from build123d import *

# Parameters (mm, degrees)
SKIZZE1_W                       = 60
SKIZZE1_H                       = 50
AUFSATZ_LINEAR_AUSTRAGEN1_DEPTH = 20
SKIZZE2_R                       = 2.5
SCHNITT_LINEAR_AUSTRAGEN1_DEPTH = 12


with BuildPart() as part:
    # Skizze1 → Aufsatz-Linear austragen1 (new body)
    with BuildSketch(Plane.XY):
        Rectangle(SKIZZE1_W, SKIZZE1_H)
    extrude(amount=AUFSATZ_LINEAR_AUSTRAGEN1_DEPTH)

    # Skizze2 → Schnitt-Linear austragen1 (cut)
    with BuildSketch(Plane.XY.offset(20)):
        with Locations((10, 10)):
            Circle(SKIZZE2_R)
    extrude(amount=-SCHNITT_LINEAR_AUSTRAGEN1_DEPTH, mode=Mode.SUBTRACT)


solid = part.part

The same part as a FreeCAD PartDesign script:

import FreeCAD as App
import Part
import Sketcher
from FreeCAD import Vector
Q = App.Units.Quantity


def add_polygon(sketch, points):
    """Adds a closed chain of lines whose ends are joined by coincident constraints."""
    first, n = sketch.GeometryCount, len(points)
    for a, b in zip(points, points[1:] + points[:1]):
        sketch.addGeometry(Part.LineSegment(App.Vector(*a, 0), App.Vector(*b, 0)), False)
    for i in range(n):
        sketch.addConstraint(Sketcher.Constraint("Coincident", first + i, 2, first + (i + 1) % n, 1))

doc = App.newDocument("Part")
body = doc.addObject("PartDesign::Body", "Body")

# Sketch on XY plane
sketch1 = body.newObject("Sketcher::SketchObject", "Sketch")
sketch1.AttachmentSupport = (doc.getObject("XY_Plane"), [""])
sketch1.MapMode = "FlatFace"
add_polygon(sketch1, [(-30, 25), (-30, -25), (30, -25), (30, 25)])  # lines 0-3
sketch1.addConstraint([
    Sketcher.Constraint("Vertical", 0),
    Sketcher.Constraint("Horizontal", 1),
    Sketcher.Constraint("Vertical", 2),
    Sketcher.Constraint("Horizontal", 3),
    Sketcher.Constraint("Symmetric", 0, 2, 2, 2, -1, 1),
    Sketcher.Constraint("DistanceX", 1, 1, 1, 2, Q("60 mm")),
    Sketcher.Constraint("DistanceY", 0, 2, 0, 1, Q("50 mm")),
])
pad1 = body.newObject("PartDesign::Pad", "Pad")
pad1.Profile = sketch1
pad1.Length = 20

# Sketch on XY plane
sketch2 = body.newObject("Sketcher::SketchObject", "Sketch001")
sketch2.AttachmentSupport = (doc.getObject("XY_Plane"), [""])
sketch2.MapMode = "FlatFace"
sketch2.AttachmentOffset = App.Placement(Vector(0, 0, 20), App.Rotation())
sketch2.addGeometry(Part.Circle(Vector(10, 10, 0), Vector(0, 0, 1), 2.5), False)
sketch2.addConstraint([
    Sketcher.Constraint("Diameter", 0, Q("5 mm")),
    Sketcher.Constraint("DistanceX", -1, 1, 0, 3, Q("10 mm")),
    Sketcher.Constraint("DistanceY", -1, 1, 0, 3, Q("10 mm")),
])
pocket1 = body.newObject("PartDesign::Pocket", "Pocket")
pocket1.Profile = sketch2
pocket1.Length = 12

doc.recompute()
